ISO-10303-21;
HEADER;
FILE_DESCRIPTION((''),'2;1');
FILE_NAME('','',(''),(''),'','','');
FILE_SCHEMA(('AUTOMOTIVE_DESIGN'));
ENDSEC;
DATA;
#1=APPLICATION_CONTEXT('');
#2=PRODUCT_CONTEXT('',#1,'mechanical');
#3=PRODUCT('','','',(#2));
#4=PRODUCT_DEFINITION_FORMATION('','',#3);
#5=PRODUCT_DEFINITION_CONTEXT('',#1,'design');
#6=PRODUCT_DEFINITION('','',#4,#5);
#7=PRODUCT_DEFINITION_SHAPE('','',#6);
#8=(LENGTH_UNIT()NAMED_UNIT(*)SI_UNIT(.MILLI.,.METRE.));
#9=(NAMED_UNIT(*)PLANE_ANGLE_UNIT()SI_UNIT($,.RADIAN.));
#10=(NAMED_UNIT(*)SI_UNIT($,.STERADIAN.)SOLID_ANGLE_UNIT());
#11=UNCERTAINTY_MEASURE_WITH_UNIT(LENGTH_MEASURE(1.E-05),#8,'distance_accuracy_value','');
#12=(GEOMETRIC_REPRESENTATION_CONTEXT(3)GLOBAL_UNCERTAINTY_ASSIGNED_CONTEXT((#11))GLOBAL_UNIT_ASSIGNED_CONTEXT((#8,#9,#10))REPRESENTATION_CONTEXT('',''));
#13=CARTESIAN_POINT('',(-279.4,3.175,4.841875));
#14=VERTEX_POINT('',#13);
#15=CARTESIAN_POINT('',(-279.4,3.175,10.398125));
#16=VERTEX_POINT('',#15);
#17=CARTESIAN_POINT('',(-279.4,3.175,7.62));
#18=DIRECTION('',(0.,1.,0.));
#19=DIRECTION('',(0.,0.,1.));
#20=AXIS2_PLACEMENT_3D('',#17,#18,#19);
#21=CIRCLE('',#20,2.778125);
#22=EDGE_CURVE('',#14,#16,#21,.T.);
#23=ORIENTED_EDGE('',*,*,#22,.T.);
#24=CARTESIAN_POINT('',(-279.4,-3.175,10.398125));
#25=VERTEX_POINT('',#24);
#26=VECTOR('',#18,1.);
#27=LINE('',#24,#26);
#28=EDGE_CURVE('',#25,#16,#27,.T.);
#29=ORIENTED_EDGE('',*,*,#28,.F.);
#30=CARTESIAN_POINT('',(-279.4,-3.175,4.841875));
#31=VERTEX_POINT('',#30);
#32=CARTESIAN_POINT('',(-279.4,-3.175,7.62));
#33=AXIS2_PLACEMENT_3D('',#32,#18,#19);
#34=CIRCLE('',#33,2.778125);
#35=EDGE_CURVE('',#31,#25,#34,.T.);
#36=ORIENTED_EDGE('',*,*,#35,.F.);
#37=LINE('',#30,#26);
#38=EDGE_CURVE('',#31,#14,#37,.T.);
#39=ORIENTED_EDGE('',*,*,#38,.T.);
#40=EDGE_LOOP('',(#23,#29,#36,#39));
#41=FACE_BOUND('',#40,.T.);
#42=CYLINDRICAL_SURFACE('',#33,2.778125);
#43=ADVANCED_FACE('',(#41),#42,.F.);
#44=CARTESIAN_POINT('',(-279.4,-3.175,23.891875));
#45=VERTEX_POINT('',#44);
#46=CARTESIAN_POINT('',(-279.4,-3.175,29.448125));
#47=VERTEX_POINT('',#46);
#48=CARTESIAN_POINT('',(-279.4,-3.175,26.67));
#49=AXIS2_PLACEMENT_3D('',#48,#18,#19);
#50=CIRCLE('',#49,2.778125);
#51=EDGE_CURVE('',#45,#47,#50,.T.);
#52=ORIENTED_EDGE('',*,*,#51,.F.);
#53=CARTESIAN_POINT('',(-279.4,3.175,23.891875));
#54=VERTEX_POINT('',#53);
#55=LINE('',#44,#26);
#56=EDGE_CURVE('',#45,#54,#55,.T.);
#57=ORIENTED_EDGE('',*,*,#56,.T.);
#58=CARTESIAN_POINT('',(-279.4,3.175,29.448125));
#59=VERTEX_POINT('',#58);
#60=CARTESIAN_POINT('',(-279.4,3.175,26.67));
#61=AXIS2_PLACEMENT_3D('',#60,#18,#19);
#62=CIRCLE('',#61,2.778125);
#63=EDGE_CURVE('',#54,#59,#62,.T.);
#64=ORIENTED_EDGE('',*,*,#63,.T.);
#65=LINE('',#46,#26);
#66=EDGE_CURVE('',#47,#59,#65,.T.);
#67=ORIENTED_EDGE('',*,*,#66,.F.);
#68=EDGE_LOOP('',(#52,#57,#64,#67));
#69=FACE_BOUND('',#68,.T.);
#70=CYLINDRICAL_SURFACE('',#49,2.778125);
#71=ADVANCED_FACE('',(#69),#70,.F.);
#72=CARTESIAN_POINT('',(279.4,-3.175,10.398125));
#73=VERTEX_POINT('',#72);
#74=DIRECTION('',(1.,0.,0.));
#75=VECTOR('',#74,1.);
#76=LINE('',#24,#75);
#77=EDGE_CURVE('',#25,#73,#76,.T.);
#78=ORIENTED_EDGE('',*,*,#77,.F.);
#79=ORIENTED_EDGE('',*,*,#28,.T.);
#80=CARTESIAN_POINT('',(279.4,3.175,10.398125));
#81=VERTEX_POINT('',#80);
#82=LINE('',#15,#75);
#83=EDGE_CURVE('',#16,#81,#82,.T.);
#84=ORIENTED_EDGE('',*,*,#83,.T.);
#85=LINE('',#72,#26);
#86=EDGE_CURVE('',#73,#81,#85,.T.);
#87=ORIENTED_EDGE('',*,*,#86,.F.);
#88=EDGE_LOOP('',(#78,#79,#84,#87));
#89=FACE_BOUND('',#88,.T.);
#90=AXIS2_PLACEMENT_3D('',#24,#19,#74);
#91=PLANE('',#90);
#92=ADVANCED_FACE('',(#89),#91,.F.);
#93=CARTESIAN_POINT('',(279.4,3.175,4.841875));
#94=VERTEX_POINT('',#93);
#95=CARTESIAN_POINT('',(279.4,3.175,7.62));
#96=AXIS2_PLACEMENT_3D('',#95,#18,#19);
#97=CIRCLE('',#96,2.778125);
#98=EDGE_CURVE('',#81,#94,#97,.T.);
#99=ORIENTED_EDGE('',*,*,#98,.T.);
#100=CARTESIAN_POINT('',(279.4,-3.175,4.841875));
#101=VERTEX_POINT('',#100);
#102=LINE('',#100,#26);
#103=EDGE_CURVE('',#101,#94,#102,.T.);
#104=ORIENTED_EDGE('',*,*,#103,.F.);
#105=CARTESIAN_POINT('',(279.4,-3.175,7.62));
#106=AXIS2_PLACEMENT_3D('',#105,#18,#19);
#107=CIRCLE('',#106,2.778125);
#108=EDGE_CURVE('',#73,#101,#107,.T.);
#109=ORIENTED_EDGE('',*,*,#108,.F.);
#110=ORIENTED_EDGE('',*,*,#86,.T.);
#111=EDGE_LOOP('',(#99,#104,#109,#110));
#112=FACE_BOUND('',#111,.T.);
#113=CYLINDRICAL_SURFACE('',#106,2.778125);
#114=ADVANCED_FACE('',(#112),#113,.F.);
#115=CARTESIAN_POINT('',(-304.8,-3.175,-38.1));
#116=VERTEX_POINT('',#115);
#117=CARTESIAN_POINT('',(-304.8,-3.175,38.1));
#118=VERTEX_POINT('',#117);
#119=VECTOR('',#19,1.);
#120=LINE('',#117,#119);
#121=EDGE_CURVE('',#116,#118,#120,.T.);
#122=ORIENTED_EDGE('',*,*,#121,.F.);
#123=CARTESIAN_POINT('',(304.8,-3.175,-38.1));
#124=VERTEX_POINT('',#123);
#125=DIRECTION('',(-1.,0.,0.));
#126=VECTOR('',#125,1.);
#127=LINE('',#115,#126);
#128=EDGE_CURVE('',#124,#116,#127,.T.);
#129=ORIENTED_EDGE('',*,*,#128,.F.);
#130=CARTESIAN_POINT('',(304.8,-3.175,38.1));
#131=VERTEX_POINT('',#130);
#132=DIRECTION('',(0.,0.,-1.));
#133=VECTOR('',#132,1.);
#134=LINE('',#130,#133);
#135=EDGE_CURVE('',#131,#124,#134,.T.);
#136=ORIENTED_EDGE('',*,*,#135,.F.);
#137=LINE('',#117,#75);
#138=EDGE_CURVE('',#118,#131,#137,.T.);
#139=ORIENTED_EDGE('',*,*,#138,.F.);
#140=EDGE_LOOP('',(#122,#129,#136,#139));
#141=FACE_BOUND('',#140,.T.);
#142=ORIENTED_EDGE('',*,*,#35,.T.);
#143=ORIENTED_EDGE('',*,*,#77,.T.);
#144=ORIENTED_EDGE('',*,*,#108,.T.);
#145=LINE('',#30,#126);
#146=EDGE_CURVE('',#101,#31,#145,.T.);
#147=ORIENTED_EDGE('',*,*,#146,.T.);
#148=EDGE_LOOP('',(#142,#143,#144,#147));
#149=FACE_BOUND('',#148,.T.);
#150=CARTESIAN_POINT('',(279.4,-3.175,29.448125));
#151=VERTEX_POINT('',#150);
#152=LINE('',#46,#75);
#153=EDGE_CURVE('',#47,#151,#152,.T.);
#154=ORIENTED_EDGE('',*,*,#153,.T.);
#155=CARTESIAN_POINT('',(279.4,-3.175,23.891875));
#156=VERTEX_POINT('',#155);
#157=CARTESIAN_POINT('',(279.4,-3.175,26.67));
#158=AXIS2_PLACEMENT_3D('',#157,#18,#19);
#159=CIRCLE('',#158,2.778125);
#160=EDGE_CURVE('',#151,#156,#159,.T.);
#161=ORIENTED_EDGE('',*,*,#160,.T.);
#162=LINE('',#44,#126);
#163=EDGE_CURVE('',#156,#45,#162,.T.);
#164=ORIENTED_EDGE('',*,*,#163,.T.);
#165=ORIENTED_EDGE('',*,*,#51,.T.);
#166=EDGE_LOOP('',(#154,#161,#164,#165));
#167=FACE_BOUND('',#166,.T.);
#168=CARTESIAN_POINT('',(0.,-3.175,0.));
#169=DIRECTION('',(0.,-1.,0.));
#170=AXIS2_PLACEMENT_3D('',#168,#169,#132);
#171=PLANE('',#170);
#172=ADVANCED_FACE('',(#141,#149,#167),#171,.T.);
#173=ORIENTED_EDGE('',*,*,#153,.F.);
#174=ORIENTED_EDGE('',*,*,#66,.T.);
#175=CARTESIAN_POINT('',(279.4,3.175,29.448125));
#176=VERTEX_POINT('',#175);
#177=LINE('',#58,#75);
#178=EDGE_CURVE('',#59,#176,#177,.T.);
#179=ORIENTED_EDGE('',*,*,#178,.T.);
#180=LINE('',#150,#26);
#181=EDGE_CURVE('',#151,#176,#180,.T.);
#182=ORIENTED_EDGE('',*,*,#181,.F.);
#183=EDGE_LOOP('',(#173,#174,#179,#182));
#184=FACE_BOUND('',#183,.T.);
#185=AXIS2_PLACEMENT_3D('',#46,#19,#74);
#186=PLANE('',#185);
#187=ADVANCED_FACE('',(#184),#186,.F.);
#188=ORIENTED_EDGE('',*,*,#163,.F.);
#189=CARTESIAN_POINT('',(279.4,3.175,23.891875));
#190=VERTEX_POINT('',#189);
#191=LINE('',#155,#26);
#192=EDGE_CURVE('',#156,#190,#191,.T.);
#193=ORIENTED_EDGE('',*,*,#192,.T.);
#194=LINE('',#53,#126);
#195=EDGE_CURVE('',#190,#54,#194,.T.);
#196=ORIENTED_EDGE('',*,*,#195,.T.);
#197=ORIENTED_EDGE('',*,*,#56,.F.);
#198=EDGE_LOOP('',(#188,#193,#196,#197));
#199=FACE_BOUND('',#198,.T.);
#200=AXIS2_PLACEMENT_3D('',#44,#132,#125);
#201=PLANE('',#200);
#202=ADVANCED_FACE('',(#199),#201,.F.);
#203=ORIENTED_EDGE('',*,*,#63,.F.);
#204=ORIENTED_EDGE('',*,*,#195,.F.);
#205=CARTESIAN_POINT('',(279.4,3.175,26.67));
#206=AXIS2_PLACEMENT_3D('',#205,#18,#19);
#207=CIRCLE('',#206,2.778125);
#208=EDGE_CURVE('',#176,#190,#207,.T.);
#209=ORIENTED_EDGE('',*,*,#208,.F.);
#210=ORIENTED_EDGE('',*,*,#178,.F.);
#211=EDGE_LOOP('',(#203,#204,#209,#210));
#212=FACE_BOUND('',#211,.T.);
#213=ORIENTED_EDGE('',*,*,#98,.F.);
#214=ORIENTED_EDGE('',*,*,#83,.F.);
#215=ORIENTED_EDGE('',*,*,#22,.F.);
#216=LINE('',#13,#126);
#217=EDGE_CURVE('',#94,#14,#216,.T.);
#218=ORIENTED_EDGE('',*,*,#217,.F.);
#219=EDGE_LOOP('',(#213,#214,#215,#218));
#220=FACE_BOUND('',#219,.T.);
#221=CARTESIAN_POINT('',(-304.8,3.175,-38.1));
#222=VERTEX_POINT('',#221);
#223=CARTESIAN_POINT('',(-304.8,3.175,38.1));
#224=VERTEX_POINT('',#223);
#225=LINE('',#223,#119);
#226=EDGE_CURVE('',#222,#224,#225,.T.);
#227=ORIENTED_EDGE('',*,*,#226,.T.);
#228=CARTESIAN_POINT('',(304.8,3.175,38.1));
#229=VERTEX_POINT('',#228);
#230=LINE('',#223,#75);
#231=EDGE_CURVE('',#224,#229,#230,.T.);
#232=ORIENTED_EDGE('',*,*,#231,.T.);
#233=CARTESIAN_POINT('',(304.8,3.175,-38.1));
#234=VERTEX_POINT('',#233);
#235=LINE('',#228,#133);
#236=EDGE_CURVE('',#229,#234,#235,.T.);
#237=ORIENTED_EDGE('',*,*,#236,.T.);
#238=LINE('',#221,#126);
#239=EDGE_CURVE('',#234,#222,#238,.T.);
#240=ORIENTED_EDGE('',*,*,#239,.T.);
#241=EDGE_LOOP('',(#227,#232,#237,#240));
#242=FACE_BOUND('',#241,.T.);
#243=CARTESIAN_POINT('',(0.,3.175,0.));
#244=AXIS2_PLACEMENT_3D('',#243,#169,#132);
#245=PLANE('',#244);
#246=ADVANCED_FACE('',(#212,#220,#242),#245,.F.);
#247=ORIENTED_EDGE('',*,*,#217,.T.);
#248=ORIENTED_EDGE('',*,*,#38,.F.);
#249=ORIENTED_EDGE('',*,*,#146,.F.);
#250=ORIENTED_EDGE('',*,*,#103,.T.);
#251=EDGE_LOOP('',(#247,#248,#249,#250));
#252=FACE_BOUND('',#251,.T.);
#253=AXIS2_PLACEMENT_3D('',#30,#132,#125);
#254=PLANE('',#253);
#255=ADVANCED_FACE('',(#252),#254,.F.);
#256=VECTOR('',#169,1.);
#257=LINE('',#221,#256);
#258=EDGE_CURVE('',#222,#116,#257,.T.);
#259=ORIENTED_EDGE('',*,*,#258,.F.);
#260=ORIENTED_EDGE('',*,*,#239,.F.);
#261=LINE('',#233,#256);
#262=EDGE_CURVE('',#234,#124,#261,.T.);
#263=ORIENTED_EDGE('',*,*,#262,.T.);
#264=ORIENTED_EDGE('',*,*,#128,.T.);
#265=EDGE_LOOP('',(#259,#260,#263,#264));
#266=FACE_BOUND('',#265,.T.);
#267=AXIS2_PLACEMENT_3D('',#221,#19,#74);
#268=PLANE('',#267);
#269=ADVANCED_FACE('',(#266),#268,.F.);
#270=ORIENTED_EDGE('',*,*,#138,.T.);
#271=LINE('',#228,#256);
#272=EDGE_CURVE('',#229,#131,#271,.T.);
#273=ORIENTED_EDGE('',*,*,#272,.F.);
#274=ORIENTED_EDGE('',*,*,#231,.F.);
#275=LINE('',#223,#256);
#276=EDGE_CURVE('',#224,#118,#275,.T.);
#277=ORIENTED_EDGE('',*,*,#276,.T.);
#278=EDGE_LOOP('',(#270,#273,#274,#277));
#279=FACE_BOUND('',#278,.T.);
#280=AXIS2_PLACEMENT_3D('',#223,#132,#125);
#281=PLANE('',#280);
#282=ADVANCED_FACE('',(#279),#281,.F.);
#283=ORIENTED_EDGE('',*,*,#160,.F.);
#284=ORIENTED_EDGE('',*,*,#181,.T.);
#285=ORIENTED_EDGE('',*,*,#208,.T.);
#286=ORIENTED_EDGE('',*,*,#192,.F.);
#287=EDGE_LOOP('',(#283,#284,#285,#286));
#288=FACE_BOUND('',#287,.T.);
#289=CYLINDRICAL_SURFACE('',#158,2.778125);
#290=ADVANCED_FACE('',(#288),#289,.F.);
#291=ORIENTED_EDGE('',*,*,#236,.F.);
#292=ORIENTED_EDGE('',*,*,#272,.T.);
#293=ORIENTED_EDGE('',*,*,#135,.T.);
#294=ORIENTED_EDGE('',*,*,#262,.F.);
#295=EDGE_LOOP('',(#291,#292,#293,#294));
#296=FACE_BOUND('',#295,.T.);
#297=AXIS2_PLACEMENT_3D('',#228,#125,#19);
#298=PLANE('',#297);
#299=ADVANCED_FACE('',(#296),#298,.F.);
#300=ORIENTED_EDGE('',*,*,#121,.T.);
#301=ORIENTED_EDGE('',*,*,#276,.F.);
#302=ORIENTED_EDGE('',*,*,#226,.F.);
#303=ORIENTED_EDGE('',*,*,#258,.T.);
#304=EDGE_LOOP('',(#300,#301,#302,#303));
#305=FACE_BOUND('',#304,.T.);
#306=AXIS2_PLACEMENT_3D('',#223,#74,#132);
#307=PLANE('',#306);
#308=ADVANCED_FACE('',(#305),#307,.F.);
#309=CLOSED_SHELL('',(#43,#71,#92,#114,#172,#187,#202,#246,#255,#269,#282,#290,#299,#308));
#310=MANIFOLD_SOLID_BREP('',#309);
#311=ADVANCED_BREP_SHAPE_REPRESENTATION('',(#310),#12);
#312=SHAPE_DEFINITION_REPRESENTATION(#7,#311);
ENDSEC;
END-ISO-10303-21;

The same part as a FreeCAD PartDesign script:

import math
import FreeCAD as App
import Part
import Sketcher
Q = App.Units.Quantity


def add_polygon(sketch, points):
    """Adds a closed chain of lines whose ends are joined by coincident constraints."""
    first, n = sketch.GeometryCount, len(points)
    for a, b in zip(points, points[1:] + points[:1]):
        sketch.addGeometry(Part.LineSegment(App.Vector(*a, 0), App.Vector(*b, 0)), False)
    for i in range(n):
        sketch.addConstraint(Sketcher.Constraint("Coincident", first + i, 2, first + (i + 1) % n, 1))

doc = App.newDocument("Part")
body = doc.addObject("PartDesign::Body", "Body")

# Sketch on XZ plane
sketch1 = body.newObject("Sketcher::SketchObject", "Sketch")
sketch1.AttachmentSupport = (doc.getObject("XZ_Plane"), [""])
sketch1.MapMode = "FlatFace"
add_polygon(sketch1, [(-305, -38), (-305, 38), (305, 38), (305, -38)])  # lines 0-3
sketch1.addConstraint(Sketcher.Constraint("Vertical", 0))
sketch1.addConstraint(Sketcher.Constraint("Horizontal", 1))
sketch1.addConstraint(Sketcher.Constraint("Vertical", 2))
sketch1.addConstraint(Sketcher.Constraint("Horizontal", 3))
sketch1.addConstraint(Sketcher.Constraint("Symmetric", 0, 2, 2, 2, -1, 1))
sketch1.addConstraint(Sketcher.Constraint("DistanceX", 1, 1, 1, 2, Q("24 in")))
sketch1.addConstraint(Sketcher.Constraint("DistanceY", 0, 1, 0, 2, Q("3 in")))
pad1 = body.newObject("PartDesign::Pad", "Pad")
pad1.Profile = sketch1
pad1.Length = Q("0.25 in")
pad1.Midplane = True

# Sketch on XZ plane
sketch2 = body.newObject("Sketcher::SketchObject", "Sketch001")
sketch2.AttachmentSupport = (doc.getObject("XZ_Plane"), [""])
sketch2.MapMode = "FlatFace"
sketch2.AttachmentOffset = App.Placement(App.Vector(0, 0, -0.125 * 25.4), App.Rotation())
sketch2.addGeometry(Part.LineSegment(App.Vector(279.4, 4.8, 0), App.Vector(-279.4, 4.8, 0)), False)
sketch2.addGeometry(Part.ArcOfCircle(Part.Circle(App.Vector(-279.4, 7.6, 0), App.Vector(0, 0, 1), 2.8), math.radians(90), math.radians(270)), False)
sketch2.addGeometry(Part.LineSegment(App.Vector(-279.4, 10.4, 0), App.Vector(279.4, 10.4, 0)), False)
sketch2.addGeometry(Part.ArcOfCircle(Part.Circle(App.Vector(279.4, 7.6, 0), App.Vector(0, 0, 1), 2.8), math.radians(-90), math.radians(90)), False)
sketch2.addGeometry(Part.LineSegment(App.Vector(279.4, 23.9, 0), App.Vector(-279.4, 23.9, 0)), False)
sketch2.addGeometry(Part.ArcOfCircle(Part.Circle(App.Vector(-279.4, 26.7, 0), App.Vector(0, 0, 1), 2.8), math.radians(90), math.radians(270)), False)
sketch2.addGeometry(Part.LineSegment(App.Vector(-279.4, 29.4, 0), App.Vector(279.4, 29.4, 0)), False)
sketch2.addGeometry(Part.ArcOfCircle(Part.Circle(App.Vector(279.4, 26.7, 0), App.Vector(0, 0, 1), 2.8), math.radians(-90), math.radians(90)), False)
sketch2.addConstraint(Sketcher.Constraint("Tangent", 0, 2, 1, 2))
sketch2.addConstraint(Sketcher.Constraint("Tangent", 1, 1, 2, 1))
sketch2.addConstraint(Sketcher.Constraint("Tangent", 2, 2, 3, 2))
sketch2.addConstraint(Sketcher.Constraint("Tangent", 3, 1, 0, 1))
sketch2.addConstraint(Sketcher.Constraint("Tangent", 4, 2, 5, 2))
sketch2.addConstraint(Sketcher.Constraint("Tangent", 5, 1, 6, 1))
sketch2.addConstraint(Sketcher.Constraint("Tangent", 6, 2, 7, 2))
sketch2.addConstraint(Sketcher.Constraint("Tangent", 7, 1, 4, 1))
sketch2.addConstraint(Sketcher.Constraint("Horizontal", 0))
sketch2.addConstraint(Sketcher.Constraint("Horizontal", 2))
sketch2.addConstraint(Sketcher.Constraint("Horizontal", 4))
sketch2.addConstraint(Sketcher.Constraint("Horizontal", 6))
sketch2.addConstraint(Sketcher.Constraint("Equal", 3, 5))
sketch2.addConstraint(Sketcher.Constraint("Vertical", 1, 3, 5, 3))
sketch2.addConstraint(Sketcher.Constraint("Vertical", 3, 3, 7, 3))
sketch2.addConstraint(Sketcher.Constraint("DistanceX", 0, 2, 0, 1, Q("22 in")))
sketch2.addConstraint(Sketcher.Constraint("DistanceX", 1, 3, -1, 1, Q("11 in")))
sketch2.addConstraint(Sketcher.Constraint("Radius", 1, Q("0.109375 in")))
sketch2.addConstraint(Sketcher.Constraint("DistanceY", -1, 1, 1, 3, Q("0.3 in")))
sketch2.addConstraint(Sketcher.Constraint("DistanceY", -1, 1, 5, 3, Q("1.05 in")))
pocket1 = body.newObject("PartDesign::Pocket", "Pocket")
pocket1.Profile = sketch2
pocket1.Type = "ThroughAll"
pocket1.Reversed = True

doc.recompute()
